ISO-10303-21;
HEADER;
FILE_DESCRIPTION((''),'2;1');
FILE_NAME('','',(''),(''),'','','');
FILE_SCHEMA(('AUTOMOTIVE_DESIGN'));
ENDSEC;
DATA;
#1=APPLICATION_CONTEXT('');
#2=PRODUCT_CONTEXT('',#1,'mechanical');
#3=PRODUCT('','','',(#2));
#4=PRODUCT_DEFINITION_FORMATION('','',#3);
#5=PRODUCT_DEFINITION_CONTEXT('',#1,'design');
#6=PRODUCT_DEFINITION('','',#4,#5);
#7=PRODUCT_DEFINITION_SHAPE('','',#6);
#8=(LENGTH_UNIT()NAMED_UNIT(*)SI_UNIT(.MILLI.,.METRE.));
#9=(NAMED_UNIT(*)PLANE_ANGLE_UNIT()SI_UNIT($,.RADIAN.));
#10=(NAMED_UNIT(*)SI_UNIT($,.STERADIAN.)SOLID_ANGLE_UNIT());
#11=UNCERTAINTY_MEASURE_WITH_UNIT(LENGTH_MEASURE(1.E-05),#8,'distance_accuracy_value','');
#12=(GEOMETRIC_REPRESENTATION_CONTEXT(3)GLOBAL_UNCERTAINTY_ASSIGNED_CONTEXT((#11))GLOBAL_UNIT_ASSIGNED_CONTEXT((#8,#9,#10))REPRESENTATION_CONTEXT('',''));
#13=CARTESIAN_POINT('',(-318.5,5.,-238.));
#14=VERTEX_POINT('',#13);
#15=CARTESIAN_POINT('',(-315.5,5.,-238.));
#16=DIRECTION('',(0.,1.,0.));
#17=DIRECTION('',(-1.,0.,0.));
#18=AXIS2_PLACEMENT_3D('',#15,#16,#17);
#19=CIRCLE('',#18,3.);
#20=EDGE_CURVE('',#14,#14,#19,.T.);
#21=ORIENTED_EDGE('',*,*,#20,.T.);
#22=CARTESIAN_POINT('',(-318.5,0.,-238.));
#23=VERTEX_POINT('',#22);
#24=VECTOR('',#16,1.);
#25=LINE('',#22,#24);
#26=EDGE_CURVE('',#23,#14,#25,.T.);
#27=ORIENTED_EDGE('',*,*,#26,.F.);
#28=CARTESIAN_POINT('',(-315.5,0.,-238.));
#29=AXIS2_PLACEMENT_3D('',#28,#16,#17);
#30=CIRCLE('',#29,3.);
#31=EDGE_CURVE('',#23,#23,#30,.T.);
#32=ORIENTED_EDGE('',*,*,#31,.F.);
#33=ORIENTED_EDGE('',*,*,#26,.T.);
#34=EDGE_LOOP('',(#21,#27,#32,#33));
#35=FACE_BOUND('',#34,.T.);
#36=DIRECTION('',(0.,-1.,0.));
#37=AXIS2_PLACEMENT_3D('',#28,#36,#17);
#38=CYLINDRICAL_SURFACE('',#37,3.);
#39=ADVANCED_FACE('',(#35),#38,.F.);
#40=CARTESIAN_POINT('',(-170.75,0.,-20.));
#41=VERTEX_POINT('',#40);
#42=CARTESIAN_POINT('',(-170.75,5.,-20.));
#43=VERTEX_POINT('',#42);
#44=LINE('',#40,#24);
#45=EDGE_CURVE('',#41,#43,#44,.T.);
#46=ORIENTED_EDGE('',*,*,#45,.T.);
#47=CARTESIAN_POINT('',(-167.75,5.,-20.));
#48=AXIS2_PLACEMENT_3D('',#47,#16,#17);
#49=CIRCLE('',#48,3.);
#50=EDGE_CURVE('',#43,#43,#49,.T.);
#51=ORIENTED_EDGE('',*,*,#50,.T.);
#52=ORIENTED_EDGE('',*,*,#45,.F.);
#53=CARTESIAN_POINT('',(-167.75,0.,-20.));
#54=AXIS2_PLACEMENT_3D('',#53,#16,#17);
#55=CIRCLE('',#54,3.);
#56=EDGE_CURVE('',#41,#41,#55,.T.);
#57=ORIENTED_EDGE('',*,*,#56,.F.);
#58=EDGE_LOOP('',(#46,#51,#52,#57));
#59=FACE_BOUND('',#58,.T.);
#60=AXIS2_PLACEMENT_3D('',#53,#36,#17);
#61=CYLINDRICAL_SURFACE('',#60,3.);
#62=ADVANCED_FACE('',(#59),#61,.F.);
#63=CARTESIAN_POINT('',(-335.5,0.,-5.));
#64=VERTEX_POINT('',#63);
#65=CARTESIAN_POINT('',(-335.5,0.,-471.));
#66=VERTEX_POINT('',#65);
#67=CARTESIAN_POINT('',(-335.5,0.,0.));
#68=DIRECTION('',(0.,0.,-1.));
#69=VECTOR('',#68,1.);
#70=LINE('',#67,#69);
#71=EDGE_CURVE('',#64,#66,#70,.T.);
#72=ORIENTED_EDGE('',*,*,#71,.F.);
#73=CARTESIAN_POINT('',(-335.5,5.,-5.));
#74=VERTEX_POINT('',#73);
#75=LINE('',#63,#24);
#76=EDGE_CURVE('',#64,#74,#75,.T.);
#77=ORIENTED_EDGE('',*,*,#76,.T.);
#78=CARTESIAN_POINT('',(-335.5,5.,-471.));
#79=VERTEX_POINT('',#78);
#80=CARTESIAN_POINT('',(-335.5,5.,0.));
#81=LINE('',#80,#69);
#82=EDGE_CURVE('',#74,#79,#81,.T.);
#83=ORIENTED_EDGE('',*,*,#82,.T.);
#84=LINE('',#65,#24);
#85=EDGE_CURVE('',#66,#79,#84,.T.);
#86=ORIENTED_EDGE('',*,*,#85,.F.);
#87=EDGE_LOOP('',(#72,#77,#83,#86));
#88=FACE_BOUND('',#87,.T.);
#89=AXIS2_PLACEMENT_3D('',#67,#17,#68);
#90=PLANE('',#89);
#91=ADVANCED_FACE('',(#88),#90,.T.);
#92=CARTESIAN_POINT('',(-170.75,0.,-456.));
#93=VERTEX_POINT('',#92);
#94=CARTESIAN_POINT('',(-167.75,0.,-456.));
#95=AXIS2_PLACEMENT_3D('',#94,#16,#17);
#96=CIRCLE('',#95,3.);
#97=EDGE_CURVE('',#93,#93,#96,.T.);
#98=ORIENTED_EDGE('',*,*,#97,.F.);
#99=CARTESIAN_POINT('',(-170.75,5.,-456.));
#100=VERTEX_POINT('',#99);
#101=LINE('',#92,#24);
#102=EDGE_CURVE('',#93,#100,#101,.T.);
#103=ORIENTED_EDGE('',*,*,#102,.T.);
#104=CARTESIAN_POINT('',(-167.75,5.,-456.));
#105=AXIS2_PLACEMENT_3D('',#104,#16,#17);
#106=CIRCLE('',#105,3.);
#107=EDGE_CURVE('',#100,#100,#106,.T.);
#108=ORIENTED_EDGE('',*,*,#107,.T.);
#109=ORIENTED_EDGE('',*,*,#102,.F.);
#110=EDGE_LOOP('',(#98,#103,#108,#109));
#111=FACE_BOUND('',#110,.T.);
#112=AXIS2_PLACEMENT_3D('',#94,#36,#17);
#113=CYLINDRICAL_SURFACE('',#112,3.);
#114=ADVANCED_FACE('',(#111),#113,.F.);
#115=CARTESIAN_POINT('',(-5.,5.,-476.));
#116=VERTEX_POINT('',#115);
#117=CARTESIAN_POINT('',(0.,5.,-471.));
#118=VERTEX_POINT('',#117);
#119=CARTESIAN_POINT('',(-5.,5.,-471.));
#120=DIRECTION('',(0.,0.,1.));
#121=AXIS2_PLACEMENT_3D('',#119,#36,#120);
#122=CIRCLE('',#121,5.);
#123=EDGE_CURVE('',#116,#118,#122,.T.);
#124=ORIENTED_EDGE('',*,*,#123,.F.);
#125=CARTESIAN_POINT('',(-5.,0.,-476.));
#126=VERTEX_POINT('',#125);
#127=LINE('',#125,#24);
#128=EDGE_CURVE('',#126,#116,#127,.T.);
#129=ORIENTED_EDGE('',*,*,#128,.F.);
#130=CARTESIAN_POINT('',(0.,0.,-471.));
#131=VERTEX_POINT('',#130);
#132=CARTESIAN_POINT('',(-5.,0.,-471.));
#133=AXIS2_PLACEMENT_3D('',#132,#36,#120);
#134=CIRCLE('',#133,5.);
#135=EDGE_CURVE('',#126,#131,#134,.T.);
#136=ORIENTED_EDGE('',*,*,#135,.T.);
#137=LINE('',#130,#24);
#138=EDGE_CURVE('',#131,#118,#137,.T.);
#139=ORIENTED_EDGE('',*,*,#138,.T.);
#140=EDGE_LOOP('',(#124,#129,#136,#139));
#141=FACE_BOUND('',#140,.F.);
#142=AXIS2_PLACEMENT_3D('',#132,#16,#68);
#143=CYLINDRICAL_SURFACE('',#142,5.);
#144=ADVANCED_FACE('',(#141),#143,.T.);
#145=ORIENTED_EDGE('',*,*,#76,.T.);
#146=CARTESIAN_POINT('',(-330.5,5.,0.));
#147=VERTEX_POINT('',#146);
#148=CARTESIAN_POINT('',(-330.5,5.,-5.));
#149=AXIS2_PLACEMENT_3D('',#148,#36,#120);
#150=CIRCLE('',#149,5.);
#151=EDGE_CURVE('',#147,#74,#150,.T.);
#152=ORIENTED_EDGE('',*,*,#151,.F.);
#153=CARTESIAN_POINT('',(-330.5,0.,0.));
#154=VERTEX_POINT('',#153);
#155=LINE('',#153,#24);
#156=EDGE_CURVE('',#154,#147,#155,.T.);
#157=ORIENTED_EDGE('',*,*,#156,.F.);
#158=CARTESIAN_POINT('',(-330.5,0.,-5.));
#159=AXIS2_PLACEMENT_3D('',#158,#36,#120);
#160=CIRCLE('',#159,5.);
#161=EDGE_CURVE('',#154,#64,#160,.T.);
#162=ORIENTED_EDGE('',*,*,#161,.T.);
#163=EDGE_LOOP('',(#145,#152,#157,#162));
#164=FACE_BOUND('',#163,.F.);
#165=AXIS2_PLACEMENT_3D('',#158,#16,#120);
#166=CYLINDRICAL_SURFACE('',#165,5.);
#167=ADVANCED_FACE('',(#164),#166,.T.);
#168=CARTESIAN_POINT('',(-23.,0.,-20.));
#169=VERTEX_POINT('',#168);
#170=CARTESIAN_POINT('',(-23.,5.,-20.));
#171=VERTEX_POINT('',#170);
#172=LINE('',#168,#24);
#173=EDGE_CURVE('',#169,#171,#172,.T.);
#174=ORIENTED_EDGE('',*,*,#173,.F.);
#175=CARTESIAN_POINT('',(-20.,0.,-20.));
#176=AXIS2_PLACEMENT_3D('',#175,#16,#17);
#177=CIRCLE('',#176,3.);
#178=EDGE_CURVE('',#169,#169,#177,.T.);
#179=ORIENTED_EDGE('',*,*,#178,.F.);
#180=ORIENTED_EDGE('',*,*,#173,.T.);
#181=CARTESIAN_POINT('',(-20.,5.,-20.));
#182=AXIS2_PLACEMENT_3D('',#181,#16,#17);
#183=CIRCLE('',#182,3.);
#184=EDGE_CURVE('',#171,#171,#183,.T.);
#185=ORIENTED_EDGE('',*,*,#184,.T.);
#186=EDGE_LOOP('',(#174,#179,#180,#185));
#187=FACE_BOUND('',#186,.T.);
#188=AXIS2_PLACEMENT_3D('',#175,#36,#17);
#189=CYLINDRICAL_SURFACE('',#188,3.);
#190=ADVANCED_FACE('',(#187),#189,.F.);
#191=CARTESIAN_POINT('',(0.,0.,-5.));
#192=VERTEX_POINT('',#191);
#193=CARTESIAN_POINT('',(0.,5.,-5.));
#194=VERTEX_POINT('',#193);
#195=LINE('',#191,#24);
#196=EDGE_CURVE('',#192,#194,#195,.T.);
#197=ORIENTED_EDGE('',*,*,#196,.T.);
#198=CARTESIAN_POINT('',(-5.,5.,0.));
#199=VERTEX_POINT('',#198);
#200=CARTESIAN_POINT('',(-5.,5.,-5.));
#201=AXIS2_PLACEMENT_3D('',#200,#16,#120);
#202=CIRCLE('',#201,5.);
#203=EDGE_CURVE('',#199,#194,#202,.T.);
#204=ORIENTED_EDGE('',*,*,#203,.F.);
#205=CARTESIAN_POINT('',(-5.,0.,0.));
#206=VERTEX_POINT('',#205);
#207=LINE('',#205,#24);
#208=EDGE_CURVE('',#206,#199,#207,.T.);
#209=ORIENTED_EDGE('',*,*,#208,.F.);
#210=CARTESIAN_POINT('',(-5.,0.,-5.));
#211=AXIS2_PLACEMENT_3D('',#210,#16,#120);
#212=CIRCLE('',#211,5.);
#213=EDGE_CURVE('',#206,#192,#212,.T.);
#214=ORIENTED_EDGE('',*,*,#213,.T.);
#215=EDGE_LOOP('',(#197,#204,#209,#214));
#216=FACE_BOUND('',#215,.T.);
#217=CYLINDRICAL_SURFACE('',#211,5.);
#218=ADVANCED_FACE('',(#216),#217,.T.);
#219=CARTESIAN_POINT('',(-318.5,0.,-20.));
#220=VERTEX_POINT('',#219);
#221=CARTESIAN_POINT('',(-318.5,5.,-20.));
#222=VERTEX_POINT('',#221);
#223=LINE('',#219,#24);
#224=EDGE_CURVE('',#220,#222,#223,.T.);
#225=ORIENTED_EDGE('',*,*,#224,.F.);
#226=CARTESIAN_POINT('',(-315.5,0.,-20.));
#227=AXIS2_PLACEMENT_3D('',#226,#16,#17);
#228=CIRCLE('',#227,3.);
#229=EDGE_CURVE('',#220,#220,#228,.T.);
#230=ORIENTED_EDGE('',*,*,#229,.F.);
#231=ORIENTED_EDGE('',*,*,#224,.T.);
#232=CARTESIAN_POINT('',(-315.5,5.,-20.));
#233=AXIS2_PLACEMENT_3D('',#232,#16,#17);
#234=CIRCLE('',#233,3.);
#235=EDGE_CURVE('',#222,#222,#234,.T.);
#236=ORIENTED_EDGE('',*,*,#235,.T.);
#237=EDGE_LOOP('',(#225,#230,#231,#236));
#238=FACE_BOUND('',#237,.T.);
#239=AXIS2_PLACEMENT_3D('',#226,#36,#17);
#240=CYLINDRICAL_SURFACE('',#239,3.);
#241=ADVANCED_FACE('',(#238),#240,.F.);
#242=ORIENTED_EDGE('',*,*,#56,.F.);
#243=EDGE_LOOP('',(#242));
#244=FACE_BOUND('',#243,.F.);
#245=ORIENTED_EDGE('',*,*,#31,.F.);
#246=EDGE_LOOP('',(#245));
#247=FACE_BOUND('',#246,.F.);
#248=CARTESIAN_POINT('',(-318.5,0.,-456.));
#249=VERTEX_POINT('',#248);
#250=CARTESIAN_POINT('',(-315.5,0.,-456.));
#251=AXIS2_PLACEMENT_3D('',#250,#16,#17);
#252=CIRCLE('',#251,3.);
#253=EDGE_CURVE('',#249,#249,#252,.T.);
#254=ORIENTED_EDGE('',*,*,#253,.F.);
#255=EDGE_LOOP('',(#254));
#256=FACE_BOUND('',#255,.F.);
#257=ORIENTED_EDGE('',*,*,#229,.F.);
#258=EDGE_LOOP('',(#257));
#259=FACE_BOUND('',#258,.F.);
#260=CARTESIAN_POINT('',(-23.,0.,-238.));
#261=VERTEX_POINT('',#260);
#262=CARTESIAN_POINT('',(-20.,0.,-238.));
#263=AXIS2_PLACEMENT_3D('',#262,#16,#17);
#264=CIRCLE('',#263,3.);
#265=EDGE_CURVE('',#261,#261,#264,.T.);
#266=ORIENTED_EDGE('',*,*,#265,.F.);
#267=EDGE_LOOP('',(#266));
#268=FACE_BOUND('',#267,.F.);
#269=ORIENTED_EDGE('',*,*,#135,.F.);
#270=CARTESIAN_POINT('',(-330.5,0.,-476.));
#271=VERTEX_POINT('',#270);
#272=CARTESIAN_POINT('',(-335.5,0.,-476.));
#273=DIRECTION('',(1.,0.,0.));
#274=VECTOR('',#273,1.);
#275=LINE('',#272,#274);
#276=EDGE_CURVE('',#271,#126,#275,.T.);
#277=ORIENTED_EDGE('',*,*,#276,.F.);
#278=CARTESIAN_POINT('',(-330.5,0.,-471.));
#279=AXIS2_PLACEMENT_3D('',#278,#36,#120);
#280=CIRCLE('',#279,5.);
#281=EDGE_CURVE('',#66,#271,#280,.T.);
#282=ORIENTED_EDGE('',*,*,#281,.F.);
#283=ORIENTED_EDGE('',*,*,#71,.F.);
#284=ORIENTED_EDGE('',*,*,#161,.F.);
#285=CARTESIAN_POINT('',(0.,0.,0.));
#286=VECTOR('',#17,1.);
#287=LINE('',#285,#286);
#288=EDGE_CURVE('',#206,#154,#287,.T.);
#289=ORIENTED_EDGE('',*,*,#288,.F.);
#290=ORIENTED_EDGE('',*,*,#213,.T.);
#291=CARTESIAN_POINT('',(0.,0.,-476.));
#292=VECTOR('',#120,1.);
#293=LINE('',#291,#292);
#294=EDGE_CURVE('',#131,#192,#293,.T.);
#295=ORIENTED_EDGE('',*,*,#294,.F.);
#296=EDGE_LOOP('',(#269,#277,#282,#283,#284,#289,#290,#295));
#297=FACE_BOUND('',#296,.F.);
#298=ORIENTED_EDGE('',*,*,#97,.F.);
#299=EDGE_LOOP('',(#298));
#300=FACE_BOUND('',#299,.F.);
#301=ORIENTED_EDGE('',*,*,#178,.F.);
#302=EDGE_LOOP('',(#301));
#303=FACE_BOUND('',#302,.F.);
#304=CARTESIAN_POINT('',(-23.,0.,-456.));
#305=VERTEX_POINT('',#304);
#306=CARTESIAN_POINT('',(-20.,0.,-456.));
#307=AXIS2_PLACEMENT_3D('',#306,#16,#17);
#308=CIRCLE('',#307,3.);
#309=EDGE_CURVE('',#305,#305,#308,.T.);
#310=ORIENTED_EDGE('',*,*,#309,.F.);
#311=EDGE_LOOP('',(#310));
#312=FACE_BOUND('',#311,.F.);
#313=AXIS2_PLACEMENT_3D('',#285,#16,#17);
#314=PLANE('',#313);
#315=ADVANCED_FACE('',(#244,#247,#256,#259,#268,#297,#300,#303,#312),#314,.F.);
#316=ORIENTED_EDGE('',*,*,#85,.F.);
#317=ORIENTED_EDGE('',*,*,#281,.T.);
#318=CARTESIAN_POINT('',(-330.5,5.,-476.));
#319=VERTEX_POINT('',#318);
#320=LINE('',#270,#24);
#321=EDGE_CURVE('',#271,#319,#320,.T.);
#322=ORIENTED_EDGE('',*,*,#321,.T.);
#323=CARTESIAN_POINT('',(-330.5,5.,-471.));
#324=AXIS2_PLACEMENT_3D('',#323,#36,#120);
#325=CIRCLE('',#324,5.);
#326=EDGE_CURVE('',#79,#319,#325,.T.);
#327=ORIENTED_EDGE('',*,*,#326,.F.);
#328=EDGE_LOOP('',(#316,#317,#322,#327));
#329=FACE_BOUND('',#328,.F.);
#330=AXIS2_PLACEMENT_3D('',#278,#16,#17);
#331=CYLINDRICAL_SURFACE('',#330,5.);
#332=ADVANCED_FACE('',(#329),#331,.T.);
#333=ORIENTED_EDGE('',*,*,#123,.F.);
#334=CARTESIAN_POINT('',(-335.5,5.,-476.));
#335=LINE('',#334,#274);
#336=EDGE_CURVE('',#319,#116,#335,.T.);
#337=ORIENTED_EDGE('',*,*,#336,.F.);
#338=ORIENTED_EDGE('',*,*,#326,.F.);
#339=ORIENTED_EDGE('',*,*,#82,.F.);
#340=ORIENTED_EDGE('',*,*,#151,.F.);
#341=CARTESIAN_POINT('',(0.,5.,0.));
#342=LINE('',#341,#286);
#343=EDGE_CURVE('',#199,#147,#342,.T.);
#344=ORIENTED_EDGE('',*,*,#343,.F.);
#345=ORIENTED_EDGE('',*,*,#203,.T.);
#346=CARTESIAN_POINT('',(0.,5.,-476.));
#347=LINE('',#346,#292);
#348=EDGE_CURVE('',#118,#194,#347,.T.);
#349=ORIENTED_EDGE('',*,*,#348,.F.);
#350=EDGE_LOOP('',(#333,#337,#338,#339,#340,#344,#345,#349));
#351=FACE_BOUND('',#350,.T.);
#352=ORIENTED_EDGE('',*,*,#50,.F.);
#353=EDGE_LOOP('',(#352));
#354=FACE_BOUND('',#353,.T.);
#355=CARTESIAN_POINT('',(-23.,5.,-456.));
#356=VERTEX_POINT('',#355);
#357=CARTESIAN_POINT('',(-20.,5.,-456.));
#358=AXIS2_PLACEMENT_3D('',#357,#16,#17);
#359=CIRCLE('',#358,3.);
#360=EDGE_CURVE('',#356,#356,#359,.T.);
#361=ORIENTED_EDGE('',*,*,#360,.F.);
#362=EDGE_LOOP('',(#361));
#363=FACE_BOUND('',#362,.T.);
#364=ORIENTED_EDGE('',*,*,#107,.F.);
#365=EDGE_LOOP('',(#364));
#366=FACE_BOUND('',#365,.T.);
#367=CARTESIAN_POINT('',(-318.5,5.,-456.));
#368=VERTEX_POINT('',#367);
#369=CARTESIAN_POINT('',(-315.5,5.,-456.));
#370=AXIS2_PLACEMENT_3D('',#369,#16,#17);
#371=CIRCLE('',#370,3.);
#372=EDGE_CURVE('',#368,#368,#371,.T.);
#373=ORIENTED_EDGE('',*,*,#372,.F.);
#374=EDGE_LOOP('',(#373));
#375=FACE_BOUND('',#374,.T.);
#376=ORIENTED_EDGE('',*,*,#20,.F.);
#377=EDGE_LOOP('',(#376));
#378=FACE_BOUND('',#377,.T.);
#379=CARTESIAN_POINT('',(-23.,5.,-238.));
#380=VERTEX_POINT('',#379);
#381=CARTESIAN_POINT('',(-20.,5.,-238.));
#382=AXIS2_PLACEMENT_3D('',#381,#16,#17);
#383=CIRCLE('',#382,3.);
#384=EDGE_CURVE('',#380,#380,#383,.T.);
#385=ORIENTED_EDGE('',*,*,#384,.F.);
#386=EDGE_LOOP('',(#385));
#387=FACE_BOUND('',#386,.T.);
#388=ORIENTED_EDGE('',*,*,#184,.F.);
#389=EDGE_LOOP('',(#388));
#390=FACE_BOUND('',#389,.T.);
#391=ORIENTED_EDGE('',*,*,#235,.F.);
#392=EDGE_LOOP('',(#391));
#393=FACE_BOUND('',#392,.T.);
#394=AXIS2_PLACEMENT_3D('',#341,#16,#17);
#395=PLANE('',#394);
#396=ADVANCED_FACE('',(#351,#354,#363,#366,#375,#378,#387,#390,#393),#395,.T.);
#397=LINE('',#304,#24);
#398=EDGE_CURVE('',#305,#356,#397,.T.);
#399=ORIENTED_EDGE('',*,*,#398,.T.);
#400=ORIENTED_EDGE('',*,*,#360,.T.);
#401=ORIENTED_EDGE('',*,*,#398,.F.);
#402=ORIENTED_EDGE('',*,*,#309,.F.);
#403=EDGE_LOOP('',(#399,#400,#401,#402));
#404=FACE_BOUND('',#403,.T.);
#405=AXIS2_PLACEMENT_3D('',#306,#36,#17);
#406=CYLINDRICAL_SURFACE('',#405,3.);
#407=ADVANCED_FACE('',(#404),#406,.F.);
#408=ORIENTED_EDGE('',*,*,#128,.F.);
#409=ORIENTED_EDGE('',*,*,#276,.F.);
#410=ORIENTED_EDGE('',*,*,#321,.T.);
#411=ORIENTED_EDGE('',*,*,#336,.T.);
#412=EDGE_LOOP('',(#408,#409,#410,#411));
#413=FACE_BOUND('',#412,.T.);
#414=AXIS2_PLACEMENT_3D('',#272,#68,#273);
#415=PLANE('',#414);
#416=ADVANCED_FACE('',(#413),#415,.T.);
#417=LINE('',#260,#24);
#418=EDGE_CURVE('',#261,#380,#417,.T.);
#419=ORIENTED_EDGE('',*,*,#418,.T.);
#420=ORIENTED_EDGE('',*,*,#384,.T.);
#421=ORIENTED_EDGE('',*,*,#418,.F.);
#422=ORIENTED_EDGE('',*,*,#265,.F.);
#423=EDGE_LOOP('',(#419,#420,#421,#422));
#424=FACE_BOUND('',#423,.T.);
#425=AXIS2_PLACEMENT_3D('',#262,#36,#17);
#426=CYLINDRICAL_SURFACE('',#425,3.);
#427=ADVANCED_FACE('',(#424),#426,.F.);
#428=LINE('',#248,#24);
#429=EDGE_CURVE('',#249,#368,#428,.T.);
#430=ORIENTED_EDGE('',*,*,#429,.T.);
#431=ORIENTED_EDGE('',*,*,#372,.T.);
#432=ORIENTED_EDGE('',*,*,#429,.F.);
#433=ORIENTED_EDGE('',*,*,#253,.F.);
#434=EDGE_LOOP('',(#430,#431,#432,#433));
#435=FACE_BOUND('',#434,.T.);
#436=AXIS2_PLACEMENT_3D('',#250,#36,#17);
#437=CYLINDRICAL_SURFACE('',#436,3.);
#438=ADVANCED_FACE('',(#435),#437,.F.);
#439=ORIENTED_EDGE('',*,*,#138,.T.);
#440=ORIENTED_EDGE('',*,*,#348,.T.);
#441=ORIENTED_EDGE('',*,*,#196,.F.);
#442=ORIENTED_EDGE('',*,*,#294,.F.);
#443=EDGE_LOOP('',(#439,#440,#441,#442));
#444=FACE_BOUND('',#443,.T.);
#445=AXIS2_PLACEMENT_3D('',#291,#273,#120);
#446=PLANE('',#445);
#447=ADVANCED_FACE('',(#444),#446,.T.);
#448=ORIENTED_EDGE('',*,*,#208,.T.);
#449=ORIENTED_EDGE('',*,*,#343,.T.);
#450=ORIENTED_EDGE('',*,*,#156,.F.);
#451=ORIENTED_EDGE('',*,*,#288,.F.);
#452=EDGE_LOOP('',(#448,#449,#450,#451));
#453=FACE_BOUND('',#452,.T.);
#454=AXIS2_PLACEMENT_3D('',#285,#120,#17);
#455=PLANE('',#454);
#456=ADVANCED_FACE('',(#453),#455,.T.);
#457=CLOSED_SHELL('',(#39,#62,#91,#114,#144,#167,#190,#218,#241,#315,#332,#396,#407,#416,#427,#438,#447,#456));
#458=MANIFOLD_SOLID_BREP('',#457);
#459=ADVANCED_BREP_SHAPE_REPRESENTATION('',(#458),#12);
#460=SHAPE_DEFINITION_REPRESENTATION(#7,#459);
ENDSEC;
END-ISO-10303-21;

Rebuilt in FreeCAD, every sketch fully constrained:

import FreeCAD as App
import Part
import Sketcher
Q = App.Units.Quantity


def edges_at(feature, points):
    """Names of the edges that pass closest to the given points."""
    edges = feature.Shape.Edges
    near = lambda p: min(range(len(edges)), key=lambda i: edges[i].distToShape(Part.Vertex(*p))[0])
    return sorted({f"Edge{near(p) + 1}" for p in points})

doc = App.newDocument("Part")
body = doc.addObject("PartDesign::Body", "Body")

# Sketch on XZ plane
sketch1 = doc.addObject("Sketcher::SketchObject", "Sketch")
body.addObject(sketch1)
sketch1.AttachmentSupport = (doc.XZ_Plane, [""])
sketch1.MapMode = "FlatFace"
sketch1.addGeometry([
    Part.LineSegment(App.Vector(-335.5, 0, 0), App.Vector(0, 0, 0)),  # 0
    Part.LineSegment(App.Vector(0, 0, 0), App.Vector(0, -476, 0)),  # 1
    Part.LineSegment(App.Vector(0, -476, 0), App.Vector(-335.5, -476, 0)),  # 2
    Part.LineSegment(App.Vector(-335.5, -476, 0), App.Vector(-335.5, 0, 0)),  # 3
    Part.Circle(App.Vector(-20, -456, 0), App.Vector(0, 0, 1), 3),  # 4
    Part.Circle(App.Vector(-167.75, -456, 0), App.Vector(0, 0, 1), 3),  # 5
    Part.Circle(App.Vector(-315.5, -456, 0), App.Vector(0, 0, 1), 3),  # 6
    Part.Circle(App.Vector(-20, -238, 0), App.Vector(0, 0, 1), 3),  # 7
    Part.Circle(App.Vector(-20, -20, 0), App.Vector(0, 0, 1), 3),  # 8
    Part.Circle(App.Vector(-315.5, -238, 0), App.Vector(0, 0, 1), 3),  # 9
    Part.Circle(App.Vector(-167.75, -20, 0), App.Vector(0, 0, 1), 3),  # 10
    Part.Circle(App.Vector(-315.5, -20, 0), App.Vector(0, 0, 1), 3),  # 11
], False)
sketch1.addConstraint([
    Sketcher.Constraint("Coincident", 0, 2, 1, 1),
    Sketcher.Constraint("Coincident", 1, 2, 2, 1),
    Sketcher.Constraint("Coincident", 2, 2, 3, 1),
    Sketcher.Constraint("Coincident", 3, 2, 0, 1),
    Sketcher.Constraint("Horizontal", 0),
    Sketcher.Constraint("Vertical", 1),
    Sketcher.Constraint("Horizontal", 2),
    Sketcher.Constraint("Vertical", 3),
    Sketcher.Constraint("Coincident", 0, 2, -1, 1),
    Sketcher.Constraint("Equal", 4, 5),
    Sketcher.Constraint("Equal", 5, 6),
    Sketcher.Constraint("Equal", 6, 7),
    Sketcher.Constraint("Equal", 7, 8),
    Sketcher.Constraint("Equal", 8, 9),
    Sketcher.Constraint("Equal", 9, 10),
    Sketcher.Constraint("Equal", 10, 11),
    Sketcher.Constraint("Horizontal", 4, 3, 5, 3),
    Sketcher.Constraint("Horizontal", 5, 3, 6, 3),
    Sketcher.Constraint("Horizontal", 7, 3, 9, 3),
    Sketcher.Constraint("Horizontal", 8, 3, 10, 3),
    Sketcher.Constraint("Horizontal", 10, 3, 11, 3),
    Sketcher.Constraint("Vertical", 4, 3, 7, 3),
    Sketcher.Constraint("Vertical", 7, 3, 8, 3),
    Sketcher.Constraint("Vertical", 6, 3, 9, 3),
    Sketcher.Constraint("Vertical", 5, 3, 10, 3),
    Sketcher.Constraint("Vertical", 9, 3, 11, 3),
    Sketcher.Constraint("Diameter", 4, Q("6 mm")),
    Sketcher.Constraint("DistanceY", 1, 2, 1, 1, Q("476 mm")),
    Sketcher.Constraint("DistanceX", 0, 1, 0, 2, Q("335.5 mm")),
    Sketcher.Constraint("DistanceX", 4, 3, -1, 1, Q("20 mm")),
    Sketcher.Constraint("DistanceY", 8, 3, -1, 1, Q("20 mm")),
    Sketcher.Constraint("DistanceY", 4, 3, 8, 3, Q("436 mm")),
    Sketcher.Constraint("DistanceX", 2, 2, 6, 3, Q("20 mm")),
    Sketcher.Constraint("DistanceY", 7, 3, -1, 1, Q("238 mm")),
    Sketcher.Constraint("DistanceX", 5, 3, -1, 1, Q("167.75 mm")),
])
pad1 = doc.addObject("PartDesign::Pad", "Pad")
body.addObject(pad1)
pad1.Profile = sketch1
pad1.Length = 5
pad1.Reversed = True
doc.recompute()

fillet = doc.addObject("PartDesign::Fillet", "Fillet")
body.addObject(fillet)
fillet.Base = (pad1, edges_at(pad1, [
    (0, 2.5, 0),
    (-335.5, 2.5, 0),
    (-335.5, 2.5, -476),
    (0, 2.5, -476),
]))
fillet.Radius = 5

doc.recompute()
